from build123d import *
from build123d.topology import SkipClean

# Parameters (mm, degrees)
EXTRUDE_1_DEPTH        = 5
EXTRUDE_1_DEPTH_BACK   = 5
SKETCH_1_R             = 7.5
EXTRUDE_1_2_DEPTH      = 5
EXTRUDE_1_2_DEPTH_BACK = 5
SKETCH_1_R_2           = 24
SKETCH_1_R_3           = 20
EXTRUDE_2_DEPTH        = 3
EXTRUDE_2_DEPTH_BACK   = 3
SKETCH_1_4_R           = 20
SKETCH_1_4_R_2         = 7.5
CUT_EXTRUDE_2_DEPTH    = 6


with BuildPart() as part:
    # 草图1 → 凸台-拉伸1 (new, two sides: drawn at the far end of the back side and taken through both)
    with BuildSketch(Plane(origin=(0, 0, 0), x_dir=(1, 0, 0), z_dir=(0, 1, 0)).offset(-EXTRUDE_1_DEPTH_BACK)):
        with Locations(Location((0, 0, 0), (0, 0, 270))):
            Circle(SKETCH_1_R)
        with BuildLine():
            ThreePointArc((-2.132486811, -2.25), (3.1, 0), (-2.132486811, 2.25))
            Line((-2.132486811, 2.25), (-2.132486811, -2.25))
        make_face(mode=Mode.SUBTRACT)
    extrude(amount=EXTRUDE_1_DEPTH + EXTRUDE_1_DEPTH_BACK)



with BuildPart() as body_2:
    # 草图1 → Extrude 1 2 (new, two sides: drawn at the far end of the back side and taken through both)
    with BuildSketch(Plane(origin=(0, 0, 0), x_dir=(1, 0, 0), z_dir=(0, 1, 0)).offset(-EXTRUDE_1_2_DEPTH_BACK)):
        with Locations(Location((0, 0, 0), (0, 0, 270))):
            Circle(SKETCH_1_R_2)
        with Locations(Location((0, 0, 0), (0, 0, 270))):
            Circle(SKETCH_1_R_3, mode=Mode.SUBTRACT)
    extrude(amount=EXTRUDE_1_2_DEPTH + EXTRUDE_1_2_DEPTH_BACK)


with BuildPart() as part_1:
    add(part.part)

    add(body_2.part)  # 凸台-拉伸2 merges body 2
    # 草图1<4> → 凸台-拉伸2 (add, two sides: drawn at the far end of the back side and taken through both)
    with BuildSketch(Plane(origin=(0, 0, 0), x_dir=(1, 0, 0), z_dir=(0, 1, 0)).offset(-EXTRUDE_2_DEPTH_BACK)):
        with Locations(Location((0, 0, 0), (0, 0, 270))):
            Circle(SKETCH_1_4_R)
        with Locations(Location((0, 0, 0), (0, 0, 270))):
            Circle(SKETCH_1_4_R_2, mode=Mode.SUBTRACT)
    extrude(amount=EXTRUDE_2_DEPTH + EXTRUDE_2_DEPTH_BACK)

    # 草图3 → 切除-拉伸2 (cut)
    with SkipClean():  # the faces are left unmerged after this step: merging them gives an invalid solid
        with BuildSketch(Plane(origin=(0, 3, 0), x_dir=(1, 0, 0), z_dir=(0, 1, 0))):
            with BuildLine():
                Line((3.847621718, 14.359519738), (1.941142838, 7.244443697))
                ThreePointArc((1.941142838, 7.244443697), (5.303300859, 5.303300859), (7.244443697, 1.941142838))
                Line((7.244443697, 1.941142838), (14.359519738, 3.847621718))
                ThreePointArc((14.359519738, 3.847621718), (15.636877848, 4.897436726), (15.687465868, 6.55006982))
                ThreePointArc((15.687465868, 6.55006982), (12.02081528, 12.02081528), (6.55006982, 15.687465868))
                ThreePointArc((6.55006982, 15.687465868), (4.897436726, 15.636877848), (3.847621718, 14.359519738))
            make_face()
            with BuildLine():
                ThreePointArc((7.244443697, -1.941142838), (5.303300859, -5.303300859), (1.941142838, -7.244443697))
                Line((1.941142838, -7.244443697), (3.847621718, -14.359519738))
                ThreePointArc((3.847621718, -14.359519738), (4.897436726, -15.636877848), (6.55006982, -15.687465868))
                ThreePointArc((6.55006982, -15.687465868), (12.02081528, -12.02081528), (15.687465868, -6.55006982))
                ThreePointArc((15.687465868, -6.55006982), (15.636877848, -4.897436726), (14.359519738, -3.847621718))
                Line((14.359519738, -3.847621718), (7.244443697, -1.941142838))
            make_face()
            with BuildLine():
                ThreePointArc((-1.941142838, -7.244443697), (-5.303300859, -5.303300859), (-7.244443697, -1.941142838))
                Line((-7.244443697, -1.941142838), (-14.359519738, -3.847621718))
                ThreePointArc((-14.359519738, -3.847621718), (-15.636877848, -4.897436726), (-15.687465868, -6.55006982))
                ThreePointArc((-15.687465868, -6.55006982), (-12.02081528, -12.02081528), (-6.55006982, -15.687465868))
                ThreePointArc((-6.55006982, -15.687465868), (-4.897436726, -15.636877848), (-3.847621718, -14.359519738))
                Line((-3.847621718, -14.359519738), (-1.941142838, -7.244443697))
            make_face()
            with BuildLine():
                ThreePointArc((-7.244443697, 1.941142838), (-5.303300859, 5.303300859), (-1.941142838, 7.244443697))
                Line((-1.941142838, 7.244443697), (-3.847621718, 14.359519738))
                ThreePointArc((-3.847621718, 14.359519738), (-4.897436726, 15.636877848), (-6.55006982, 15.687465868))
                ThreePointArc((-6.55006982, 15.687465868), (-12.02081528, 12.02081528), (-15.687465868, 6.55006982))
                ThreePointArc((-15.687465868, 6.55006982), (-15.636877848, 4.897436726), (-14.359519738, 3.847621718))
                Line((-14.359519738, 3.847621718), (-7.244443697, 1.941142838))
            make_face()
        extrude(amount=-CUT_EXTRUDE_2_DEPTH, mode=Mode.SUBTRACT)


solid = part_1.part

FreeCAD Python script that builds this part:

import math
import FreeCAD as App
import Part
import Sketcher

V = App.Vector
Q = App.Units.Quantity

doc = App.newDocument("Part")
body = doc.addObject("PartDesign::Body", "Body")

sketch1 = body.newObject("Sketcher::SketchObject", "Sketch")
sketch1.AttachmentSupport = (doc.getObject("XZ_Plane"), [""])
sketch1.MapMode = "FlatFace"
sketch1.addGeometry([
    Part.Circle(V(0, 0, 0), V(0, 0, 1), 7.5),
    Part.ArcOfCircle(Part.Circle(V(0, 0, 0), V(0, 0, 1), 3.1), math.radians(-133), math.radians(133)),
    Part.LineSegment(V(-2.1, 2.2, 0), V(-2.1, -2.2, 0)),
], False)
sketch1.addConstraint([
    Sketcher.Constraint("Coincident", 1, 1, 2, 2),
    Sketcher.Constraint("Coincident", 2, 1, 1, 2),
    Sketcher.Constraint("Vertical", 2),
    Sketcher.Constraint("Coincident", 0, 3, -1, 1),
    Sketcher.Constraint("Coincident", 1, 3, -1, 1),
    Sketcher.Constraint("Diameter", 0, 15.0),
    Sketcher.Constraint("Radius", 1, 3.1),
    Sketcher.Constraint("DistanceY", 2, 2, 2, 1, 4.5),
])
pad1 = body.newObject("PartDesign::Pad", "Pad")
pad1.Profile = sketch1
pad1.Type = "TwoLengths"
pad1.Length = 5
pad1.Length2 = 5
pad1.Reversed = True
body2 = doc.addObject("PartDesign::Body", "Body001")

sketch2 = body2.newObject("Sketcher::SketchObject", "Sketch001")
sketch2.AttachmentSupport = (doc.getObject("XZ_Plane001"), [""])
sketch2.MapMode = "FlatFace"
sketch2.addGeometry([
    Part.Circle(V(0, 0, 0), V(0, 0, 1), 24),
    Part.Circle(V(0, 0, 0), V(0, 0, 1), 20),
], False)
sketch2.addConstraint([
    Sketcher.Constraint("Coincident", 0, 3, -1, 1),
    Sketcher.Constraint("Coincident", 1, 3, -1, 1),
    Sketcher.Constraint("Diameter", 0, 48.0),
    Sketcher.Constraint("Diameter", 1, 40.0),
])
pad2 = body2.newObject("PartDesign::Pad", "Pad001")
pad2.Profile = sketch2
pad2.Type = "TwoLengths"
pad2.Length = 5
pad2.Length2 = 5
pad2.Reversed = True
body.AllowCompound = True
doc.recompute()

boolean = body.newObject("PartDesign::Boolean", "Boolean")
boolean.Type = "Fuse"
boolean.addObjects([body2])

sketch3 = body.newObject("Sketcher::SketchObject", "Sketch002")
sketch3.AttachmentSupport = (doc.getObject("XZ_Plane"), [""])
sketch3.MapMode = "FlatFace"
sketch3.addGeometry([
    Part.Circle(V(0, 0, 0), V(0, 0, 1), 20),
    Part.Circle(V(0, 0, 0), V(0, 0, 1), 8),
], False)
sketch3.addConstraint([
    Sketcher.Constraint("Coincident", 0, 3, -1, 1),
    Sketcher.Constraint("Coincident", 1, 3, -1, 1),
    Sketcher.Constraint("Diameter", 0, 40.0),
    Sketcher.Constraint("Diameter", 1, 15.0),
])
pad3 = body.newObject("PartDesign::Pad", "Pad002")
pad3.Profile = sketch3
pad3.Type = "TwoLengths"
pad3.Length = 3
pad3.Length2 = 3
pad3.Reversed = True

sketch4 = body.newObject("Sketcher::SketchObject", "Sketch003")
sketch4.AttachmentSupport = (doc.getObject("XZ_Plane"), [""])
sketch4.MapMode = "FlatFace"
sketch4.AttachmentOffset = App.Placement(V(0, 0, -3), App.Rotation())
sketch4.addGeometry([
    Part.LineSegment(V(3.8, -14.4, 0), V(1.9, -7.2, 0)),
    Part.ArcOfCircle(Part.Circle(V(0, 0, 0), V(0, 0, 1), 7.5), math.radians(-75), math.radians(-15)),
    Part.LineSegment(V(7.2, -1.9, 0), V(14.4, -3.8, 0)),
    Part.ArcOfCircle(Part.Circle(V(13.8, -5.8, 0), V(0, 0, 1), 2), math.radians(-23), math.radians(75)),
    Part.ArcOfCircle(Part.Circle(V(0, 0, 0), V(0, 0, 1), 17), math.radians(-67), math.radians(-23)),
    Part.ArcOfCircle(Part.Circle(V(5.8, -13.8, 0), V(0, 0, 1), 2), math.radians(-165), math.radians(-67)),
    Part.ArcOfCircle(Part.Circle(V(0, 0, 0), V(0, 0, 1), 7.5), math.radians(15), math.radians(75)),
    Part.LineSegment(V(1.9, 7.2, 0), V(3.8, 14.4, 0)),
    Part.ArcOfCircle(Part.Circle(V(5.8, 13.8, 0), V(0, 0, 1), 2), math.radians(67), math.radians(165)),
    Part.ArcOfCircle(Part.Circle(V(0, 0, 0), V(0, 0, 1), 17), math.radians(23), math.radians(67)),
    Part.ArcOfCircle(Part.Circle(V(13.8, 5.8, 0), V(0, 0, 1), 2), math.radians(-75), math.radians(23)),
    Part.LineSegment(V(14.4, 3.8, 0), V(7.2, 1.9, 0)),
    Part.ArcOfCircle(Part.Circle(V(0, 0, 0), V(0, 0, 1), 7.5), math.radians(105), math.radians(165)),
    Part.LineSegment(V(-7.2, 1.9, 0), V(-14.4, 3.8, 0)),
    Part.ArcOfCircle(Part.Circle(V(-13.8, 5.8, 0), V(0, 0, 1), 2), math.radians(157), math.radians(255)),
    Part.ArcOfCircle(Part.Circle(V(0, 0, 0), V(0, 0, 1), 17), math.radians(113), math.radians(157)),
    Part.ArcOfCircle(Part.Circle(V(-5.8, 13.8, 0), V(0, 0, 1), 2), math.radians(15), math.radians(113)),
    Part.LineSegment(V(-3.8, 14.4, 0), V(-1.9, 7.2, 0)),
    Part.ArcOfCircle(Part.Circle(V(0, 0, 0), V(0, 0, 1), 7.5), math.radians(-165), math.radians(-105)),
    Part.LineSegment(V(-1.9, -7.2, 0), V(-3.8, -14.4, 0)),
    Part.ArcOfCircle(Part.Circle(V(-5.8, -13.8, 0), V(0, 0, 1), 2), math.radians(-113), math.radians(-15)),
    Part.ArcOfCircle(Part.Circle(V(0, 0, 0), V(0, 0, 1), 17), math.radians(-157), math.radians(-113)),
    Part.ArcOfCircle(Part.Circle(V(-13.8, -5.8, 0), V(0, 0, 1), 2), math.radians(105), math.radians(203)),
    Part.LineSegment(V(-14.4, -3.8, 0), V(-7.2, -1.9, 0)),
], False)
sketch4.addConstraint([
    Sketcher.Constraint("Coincident", 0, 2, 1, 1),
    Sketcher.Constraint("Coincident", 1, 2, 2, 1),
    Sketcher.Constraint("Tangent", 2, 2, 3, 2),
    Sketcher.Constraint("Tangent", 3, 1, 4, 2),
    Sketcher.Constraint("Tangent", 4, 1, 5, 2),
    Sketcher.Constraint("Tangent", 5, 1, 0, 1),
    Sketcher.Constraint("Coincident", 6, 2, 7, 1),
    Sketcher.Constraint("Tangent", 7, 2, 8, 2),
    Sketcher.Constraint("Tangent", 8, 1, 9, 2),
    Sketcher.Constraint("Tangent", 9, 1, 10, 2),
    Sketcher.Constraint("Tangent", 10, 1, 11, 1),
    Sketcher.Constraint("Coincident", 11, 2, 6, 1),
    Sketcher.Constraint("Coincident", 12, 2, 13, 1),
    Sketcher.Constraint("Tangent", 13, 2, 14, 2),
    Sketcher.Constraint("Tangent", 14, 1, 15, 2),
    Sketcher.Constraint("Tangent", 15, 1, 16, 2),
    Sketcher.Constraint("Tangent", 16, 1, 17, 1),
    Sketcher.Constraint("Coincident", 17, 2, 12, 1),
    Sketcher.Constraint("Coincident", 18, 2, 19, 1),
    Sketcher.Constraint("Tangent", 19, 2, 20, 2),
    Sketcher.Constraint("Tangent", 20, 1, 21, 2),
    Sketcher.Constraint("Tangent", 21, 1, 22, 2),
    Sketcher.Constraint("Tangent", 22, 1, 23, 1),
    Sketcher.Constraint("Coincident", 23, 2, 18, 1),
    Sketcher.Constraint("Coincident", 1, 3, -1, 1),
    Sketcher.Constraint("Coincident", 4, 3, -1, 1),
    Sketcher.Constraint("Coincident", 6, 3, -1, 1),
    Sketcher.Constraint("Coincident", 9, 3, -1, 1),
    Sketcher.Constraint("Coincident", 12, 3, -1, 1),
    Sketcher.Constraint("Coincident", 15, 3, -1, 1),
    Sketcher.Constraint("Coincident", 18, 3, -1, 1),
    Sketcher.Constraint("Coincident", 21, 3, -1, 1),
    Sketcher.Constraint("Equal", 3, 5),
    Sketcher.Constraint("Equal", 1, 6),
    Sketcher.Constraint("Equal", 5, 8),
    Sketcher.Constraint("Equal", 4, 9),
    Sketcher.Constraint("Equal", 8, 10),
    Sketcher.Constraint("Equal", 6, 12),
    Sketcher.Constraint("Equal", 10, 14),
    Sketcher.Constraint("Equal", 9, 15),
    Sketcher.Constraint("Equal", 14, 16),
    Sketcher.Constraint("Equal", 12, 18),
    Sketcher.Constraint("Equal", 16, 20),
    Sketcher.Constraint("Equal", 15, 21),
    Sketcher.Constraint("Equal", 20, 22),
    Sketcher.Constraint("Symmetric", 2, 2, 13, 2, -1, 1),
    Sketcher.Constraint("Symmetric", 5, 1, 16, 1, -1, 1),
    Sketcher.Constraint("Symmetric", 7, 2, 19, 2, -1, 1),
    Sketcher.Constraint("Symmetric", 10, 1, 22, 1, -1, 1),
    Sketcher.Constraint("Symmetric", 10, 1, 13, 2, -2),
    Sketcher.Constraint("Symmetric", 7, 2, 16, 1, -2),
    Sketcher.Constraint("Perpendicular", 2, 7),
    Sketcher.Constraint("Equal", 0, 2),
    Sketcher.Constraint("Radius", 3, 2.0),
    Sketcher.Constraint("Radius", 4, 17.0),
    Sketcher.Constraint("Radius", 1, 7.5),
    Sketcher.Constraint("Angle", 0, Q("105 deg")),
    Sketcher.Constraint("DistanceX", 0, 2, 1, 2, 5.303301),
])
pocket1 = body.newObject("PartDesign::Pocket", "Pocket")
pocket1.Profile = sketch4
pocket1.Length = 6
pocket1.Reversed = True

doc.recompute()
